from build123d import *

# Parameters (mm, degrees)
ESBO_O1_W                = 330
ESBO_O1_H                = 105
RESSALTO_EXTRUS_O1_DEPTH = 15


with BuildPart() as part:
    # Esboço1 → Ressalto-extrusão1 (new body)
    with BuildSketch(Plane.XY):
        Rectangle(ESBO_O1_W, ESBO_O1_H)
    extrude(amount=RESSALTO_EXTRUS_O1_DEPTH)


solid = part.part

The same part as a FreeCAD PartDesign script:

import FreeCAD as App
import Part
import Sketcher
Q = App.Units.Quantity

doc = App.newDocument("Part")
params = doc.addObject("Spreadsheet::Sheet", "Params")
for row, (alias, value) in enumerate([
    ("sketch1_width", "330 mm"),
    ("sketch1_height", "105 mm"),
    ("pad1_length", "15 mm"),
], start=1):
    params.set(f"A{row}", alias)
    params.set(f"B{row}", "=" + value)
    params.setAlias(f"B{row}", alias)

body = doc.addObject("PartDesign::Body", "Body")

# Sketch on XY plane
sketch1 = body.newObject("Sketcher::SketchObject", "Sketch")
sketch1.AttachmentSupport = (doc.getObject("XY_Plane"), [""])
sketch1.MapMode = "FlatFace"
sketch1.addGeometry(Part.LineSegment(App.Vector(-165, 52, 0), App.Vector(-165, -52, 0)), False)
sketch1.addGeometry(Part.LineSegment(App.Vector(-165, -52, 0), App.Vector(165, -52, 0)), False)
sketch1.addGeometry(Part.LineSegment(App.Vector(165, -52, 0), App.Vector(165, 52, 0)), False)
sketch1.addGeometry(Part.LineSegment(App.Vector(165, 52, 0), App.Vector(-165, 52, 0)), False)
sketch1.addConstraint(Sketcher.Constraint("Coincident", 0, 2, 1, 1))
sketch1.addConstraint(Sketcher.Constraint("Coincident", 1, 2, 2, 1))
sketch1.addConstraint(Sketcher.Constraint("Coincident", 2, 2, 3, 1))
sketch1.addConstraint(Sketcher.Constraint("Coincident", 3, 2, 0, 1))
sketch1.addConstraint(Sketcher.Constraint("Vertical", 0))
sketch1.addConstraint(Sketcher.Constraint("Horizontal", 1))
sketch1.addConstraint(Sketcher.Constraint("Vertical", 2))
sketch1.addConstraint(Sketcher.Constraint("Horizontal", 3))
sketch1.addConstraint(Sketcher.Constraint("Symmetric", 0, 2, 2, 2, -1, 1))
sketch1.addConstraint(Sketcher.Constraint("DistanceX", 1, 1, 1, 2, Q("330 mm")))
sketch1.addConstraint(Sketcher.Constraint("DistanceY", 0, 2, 0, 1, Q("105 mm")))
sketch1.setExpression("Constraints[9]", "Params.sketch1_width")
sketch1.setExpression("Constraints[10]", "Params.sketch1_height")
pad1 = body.newObject("PartDesign::Pad", "Pad")
pad1.Profile = sketch1
pad1.setExpression("Length", "Params.pad1_length")

doc.recompute()
